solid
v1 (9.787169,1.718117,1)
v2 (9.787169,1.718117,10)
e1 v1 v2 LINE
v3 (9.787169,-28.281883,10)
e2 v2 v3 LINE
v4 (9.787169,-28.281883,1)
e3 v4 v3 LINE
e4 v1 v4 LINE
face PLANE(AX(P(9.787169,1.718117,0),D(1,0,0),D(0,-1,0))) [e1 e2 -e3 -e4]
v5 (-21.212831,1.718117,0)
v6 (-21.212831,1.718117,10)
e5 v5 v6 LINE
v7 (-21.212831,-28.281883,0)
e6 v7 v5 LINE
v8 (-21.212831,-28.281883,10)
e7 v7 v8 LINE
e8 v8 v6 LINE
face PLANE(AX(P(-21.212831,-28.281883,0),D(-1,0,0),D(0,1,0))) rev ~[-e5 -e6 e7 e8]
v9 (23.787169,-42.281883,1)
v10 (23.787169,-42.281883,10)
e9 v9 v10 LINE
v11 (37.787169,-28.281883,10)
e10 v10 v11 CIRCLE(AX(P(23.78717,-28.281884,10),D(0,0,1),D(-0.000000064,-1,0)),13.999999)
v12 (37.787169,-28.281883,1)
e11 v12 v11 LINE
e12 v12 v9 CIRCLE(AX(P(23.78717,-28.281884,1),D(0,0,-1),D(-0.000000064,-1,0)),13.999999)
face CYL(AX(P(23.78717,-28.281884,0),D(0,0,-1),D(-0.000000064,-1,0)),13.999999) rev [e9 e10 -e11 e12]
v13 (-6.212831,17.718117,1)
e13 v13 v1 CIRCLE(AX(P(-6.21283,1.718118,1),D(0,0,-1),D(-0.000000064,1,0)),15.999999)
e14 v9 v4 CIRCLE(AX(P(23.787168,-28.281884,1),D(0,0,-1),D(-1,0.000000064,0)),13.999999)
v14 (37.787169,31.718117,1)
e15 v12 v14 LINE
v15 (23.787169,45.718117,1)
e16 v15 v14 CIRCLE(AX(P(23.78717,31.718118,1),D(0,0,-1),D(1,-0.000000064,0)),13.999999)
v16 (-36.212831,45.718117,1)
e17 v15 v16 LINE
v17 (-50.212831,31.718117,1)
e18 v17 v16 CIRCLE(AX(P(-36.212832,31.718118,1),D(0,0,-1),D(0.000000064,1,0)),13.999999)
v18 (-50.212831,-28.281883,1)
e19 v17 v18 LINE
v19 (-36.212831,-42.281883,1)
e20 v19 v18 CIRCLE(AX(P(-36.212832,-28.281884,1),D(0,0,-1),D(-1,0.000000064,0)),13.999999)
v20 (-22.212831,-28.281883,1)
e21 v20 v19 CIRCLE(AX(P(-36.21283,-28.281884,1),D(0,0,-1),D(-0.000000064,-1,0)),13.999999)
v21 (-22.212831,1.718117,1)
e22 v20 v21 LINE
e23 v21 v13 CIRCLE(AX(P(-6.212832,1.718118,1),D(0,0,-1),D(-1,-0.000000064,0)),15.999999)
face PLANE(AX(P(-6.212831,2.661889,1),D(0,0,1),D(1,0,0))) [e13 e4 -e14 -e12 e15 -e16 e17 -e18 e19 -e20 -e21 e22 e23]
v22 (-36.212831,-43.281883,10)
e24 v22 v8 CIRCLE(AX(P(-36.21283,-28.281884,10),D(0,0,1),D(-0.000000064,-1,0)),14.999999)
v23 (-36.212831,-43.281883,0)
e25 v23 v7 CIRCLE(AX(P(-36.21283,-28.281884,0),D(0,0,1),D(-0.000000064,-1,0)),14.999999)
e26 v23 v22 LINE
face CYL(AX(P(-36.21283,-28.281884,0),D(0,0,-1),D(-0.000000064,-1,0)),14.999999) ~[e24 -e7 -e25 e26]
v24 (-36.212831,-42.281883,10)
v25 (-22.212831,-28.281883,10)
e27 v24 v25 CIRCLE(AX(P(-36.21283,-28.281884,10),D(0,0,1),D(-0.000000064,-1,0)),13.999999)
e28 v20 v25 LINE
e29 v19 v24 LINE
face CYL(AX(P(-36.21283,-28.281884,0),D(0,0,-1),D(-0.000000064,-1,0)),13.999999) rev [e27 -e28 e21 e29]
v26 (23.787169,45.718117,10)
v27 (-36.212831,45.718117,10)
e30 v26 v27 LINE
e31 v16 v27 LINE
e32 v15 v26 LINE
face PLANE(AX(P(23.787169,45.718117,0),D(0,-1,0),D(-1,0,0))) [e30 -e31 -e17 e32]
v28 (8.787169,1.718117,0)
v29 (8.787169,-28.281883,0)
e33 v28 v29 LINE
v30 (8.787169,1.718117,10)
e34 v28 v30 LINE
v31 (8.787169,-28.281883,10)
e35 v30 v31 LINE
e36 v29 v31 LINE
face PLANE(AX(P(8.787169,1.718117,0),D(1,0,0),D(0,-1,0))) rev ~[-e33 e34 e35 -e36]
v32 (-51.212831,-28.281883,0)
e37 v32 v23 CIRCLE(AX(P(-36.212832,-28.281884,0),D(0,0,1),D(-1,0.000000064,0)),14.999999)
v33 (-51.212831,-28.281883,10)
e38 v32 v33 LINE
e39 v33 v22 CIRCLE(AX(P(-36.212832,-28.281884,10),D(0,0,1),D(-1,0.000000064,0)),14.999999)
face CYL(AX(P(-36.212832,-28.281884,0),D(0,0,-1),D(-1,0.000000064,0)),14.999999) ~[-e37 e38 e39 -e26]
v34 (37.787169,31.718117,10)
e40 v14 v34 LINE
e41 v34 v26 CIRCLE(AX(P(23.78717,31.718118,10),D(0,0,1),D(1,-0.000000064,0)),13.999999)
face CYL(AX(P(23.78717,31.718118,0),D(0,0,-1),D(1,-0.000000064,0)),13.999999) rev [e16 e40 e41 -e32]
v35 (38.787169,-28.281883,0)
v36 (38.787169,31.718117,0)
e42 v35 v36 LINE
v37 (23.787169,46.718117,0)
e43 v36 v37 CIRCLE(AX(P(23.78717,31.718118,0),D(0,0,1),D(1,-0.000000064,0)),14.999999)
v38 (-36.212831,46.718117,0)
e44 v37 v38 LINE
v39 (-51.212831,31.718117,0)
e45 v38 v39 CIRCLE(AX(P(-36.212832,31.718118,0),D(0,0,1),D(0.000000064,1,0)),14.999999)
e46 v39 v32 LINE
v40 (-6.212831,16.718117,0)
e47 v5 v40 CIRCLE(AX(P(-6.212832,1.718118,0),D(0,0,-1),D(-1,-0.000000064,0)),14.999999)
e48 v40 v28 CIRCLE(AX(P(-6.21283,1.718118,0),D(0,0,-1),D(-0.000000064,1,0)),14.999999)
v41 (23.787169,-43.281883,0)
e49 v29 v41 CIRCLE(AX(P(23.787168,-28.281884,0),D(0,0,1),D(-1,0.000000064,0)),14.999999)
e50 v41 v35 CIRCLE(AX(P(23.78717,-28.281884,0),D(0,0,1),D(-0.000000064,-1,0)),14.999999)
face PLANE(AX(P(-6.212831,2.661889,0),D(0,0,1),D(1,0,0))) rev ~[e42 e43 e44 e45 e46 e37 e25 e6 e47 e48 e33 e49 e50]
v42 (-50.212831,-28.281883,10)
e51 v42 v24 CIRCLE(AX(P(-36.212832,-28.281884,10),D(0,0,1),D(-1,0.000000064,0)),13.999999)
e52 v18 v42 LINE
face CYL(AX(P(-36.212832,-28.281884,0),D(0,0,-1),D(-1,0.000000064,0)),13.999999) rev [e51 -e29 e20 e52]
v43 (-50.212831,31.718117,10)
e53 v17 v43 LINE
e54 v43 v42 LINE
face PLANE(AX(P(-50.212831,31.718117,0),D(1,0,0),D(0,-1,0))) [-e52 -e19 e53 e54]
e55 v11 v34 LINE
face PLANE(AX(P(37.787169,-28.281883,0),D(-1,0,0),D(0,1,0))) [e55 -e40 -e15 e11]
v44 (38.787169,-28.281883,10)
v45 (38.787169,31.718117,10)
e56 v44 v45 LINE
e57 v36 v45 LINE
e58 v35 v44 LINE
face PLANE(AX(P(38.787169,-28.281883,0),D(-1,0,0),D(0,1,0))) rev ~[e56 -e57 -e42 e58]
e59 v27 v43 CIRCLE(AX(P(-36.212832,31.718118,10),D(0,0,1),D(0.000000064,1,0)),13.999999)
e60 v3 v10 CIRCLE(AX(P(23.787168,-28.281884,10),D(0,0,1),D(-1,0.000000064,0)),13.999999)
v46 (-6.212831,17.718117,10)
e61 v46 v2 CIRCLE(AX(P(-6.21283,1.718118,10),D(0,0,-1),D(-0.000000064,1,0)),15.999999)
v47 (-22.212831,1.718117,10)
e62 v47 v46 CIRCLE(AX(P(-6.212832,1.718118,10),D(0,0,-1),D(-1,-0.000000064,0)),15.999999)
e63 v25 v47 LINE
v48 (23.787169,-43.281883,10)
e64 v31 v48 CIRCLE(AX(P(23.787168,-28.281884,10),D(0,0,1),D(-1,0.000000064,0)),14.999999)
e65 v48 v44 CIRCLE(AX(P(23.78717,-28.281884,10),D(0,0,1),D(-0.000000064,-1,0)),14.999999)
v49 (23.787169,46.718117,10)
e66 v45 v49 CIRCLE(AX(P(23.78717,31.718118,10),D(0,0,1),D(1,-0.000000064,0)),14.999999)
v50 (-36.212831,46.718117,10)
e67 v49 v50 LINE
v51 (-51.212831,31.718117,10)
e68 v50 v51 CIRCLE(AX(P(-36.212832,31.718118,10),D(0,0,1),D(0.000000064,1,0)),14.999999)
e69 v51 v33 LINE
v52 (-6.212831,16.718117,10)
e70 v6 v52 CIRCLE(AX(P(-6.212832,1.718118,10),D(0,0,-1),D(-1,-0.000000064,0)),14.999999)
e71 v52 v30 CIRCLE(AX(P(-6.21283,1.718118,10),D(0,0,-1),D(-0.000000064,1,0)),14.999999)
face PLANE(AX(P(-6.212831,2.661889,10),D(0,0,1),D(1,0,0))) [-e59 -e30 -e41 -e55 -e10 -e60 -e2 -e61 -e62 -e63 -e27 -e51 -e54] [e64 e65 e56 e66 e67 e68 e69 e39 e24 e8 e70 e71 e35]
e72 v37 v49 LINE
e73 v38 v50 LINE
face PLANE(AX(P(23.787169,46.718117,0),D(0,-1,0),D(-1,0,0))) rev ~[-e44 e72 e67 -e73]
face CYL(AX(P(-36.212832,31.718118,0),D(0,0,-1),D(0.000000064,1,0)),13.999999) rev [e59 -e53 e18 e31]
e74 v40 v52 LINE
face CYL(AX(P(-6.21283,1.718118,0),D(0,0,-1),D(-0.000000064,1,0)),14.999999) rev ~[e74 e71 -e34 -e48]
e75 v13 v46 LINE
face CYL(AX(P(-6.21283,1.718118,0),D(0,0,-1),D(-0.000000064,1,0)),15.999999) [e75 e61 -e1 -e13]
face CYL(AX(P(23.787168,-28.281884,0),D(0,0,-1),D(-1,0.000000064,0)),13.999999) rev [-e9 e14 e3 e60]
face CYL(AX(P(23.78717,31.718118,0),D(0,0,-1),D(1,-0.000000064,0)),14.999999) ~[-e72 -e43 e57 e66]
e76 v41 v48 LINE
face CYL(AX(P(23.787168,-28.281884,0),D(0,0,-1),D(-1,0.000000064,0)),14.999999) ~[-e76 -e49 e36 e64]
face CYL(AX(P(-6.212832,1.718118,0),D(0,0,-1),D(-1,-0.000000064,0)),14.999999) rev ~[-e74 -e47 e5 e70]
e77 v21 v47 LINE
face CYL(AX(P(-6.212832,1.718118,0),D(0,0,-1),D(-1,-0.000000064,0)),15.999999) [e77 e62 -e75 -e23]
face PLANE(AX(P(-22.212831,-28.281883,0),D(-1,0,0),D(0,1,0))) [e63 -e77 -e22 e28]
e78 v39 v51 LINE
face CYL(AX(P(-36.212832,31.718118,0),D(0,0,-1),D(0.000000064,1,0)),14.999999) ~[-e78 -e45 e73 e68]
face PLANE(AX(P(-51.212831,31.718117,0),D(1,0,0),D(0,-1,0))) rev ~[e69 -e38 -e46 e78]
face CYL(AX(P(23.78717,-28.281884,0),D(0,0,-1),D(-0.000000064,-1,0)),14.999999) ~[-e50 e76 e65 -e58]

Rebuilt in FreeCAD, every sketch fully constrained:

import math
import FreeCAD as App
import Part
import Sketcher
Q = App.Units.Quantity


def faces_at(feature, points):
    """Names of the faces that lie closest to the given points."""
    faces = feature.Shape.Faces
    near = lambda p: min(range(len(faces)), key=lambda i: faces[i].distToShape(Part.Vertex(*p))[0])
    return sorted({f"Face{near(p) + 1}" for p in points})

doc = App.newDocument("Part")
body = doc.addObject("PartDesign::Body", "Body")

# Sketch on XY plane
sketch1 = doc.addObject("Sketcher::SketchObject", "Sketch")
body.addObject(sketch1)
sketch1.AttachmentSupport = (doc.XY_Plane, [""])
sketch1.MapMode = "FlatFace"
sketch1.addGeometry([
    Part.LineSegment(App.Vector(-51, 32, 0), App.Vector(-51, -28, 0)),  # 0
    Part.ArcOfCircle(Part.Circle(App.Vector(-36, -28, 0), App.Vector(0, 0, 1), 15), math.radians(180), math.radians(270)),  # 1
    Part.ArcOfCircle(Part.Circle(App.Vector(-36, -28, 0), App.Vector(0, 0, 1), 15), math.radians(-90), math.radians(0)),  # 2
    Part.LineSegment(App.Vector(-21, -28, 0), App.Vector(-21, 2, 0)),  # 3
    Part.ArcOfCircle(Part.Circle(App.Vector(-6, 2, 0), App.Vector(0, 0, 1), 15), math.radians(90), math.radians(180)),  # 4
    Part.ArcOfCircle(Part.Circle(App.Vector(-6, 2, 0), App.Vector(0, 0, 1), 15), math.radians(0), math.radians(90)),  # 5
    Part.LineSegment(App.Vector(9, 2, 0), App.Vector(9, -28, 0)),  # 6
    Part.ArcOfCircle(Part.Circle(App.Vector(24, -28, 0), App.Vector(0, 0, 1), 15), math.radians(180), math.radians(270)),  # 7
    Part.ArcOfCircle(Part.Circle(App.Vector(24, -28, 0), App.Vector(0, 0, 1), 15), math.radians(-90), math.radians(0)),  # 8
    Part.LineSegment(App.Vector(39, -28, 0), App.Vector(39, 32, 0)),  # 9
    Part.ArcOfCircle(Part.Circle(App.Vector(24, 32, 0), App.Vector(0, 0, 1), 15), math.radians(0), math.radians(90)),  # 10
    Part.LineSegment(App.Vector(24, 47, 0), App.Vector(-36, 47, 0)),  # 11
    Part.ArcOfCircle(Part.Circle(App.Vector(-36, 32, 0), App.Vector(0, 0, 1), 15), math.radians(90), math.radians(180)),  # 12
], False)
sketch1.addConstraint([
    Sketcher.Constraint("Tangent", 0, 2, 1, 1),
    Sketcher.Constraint("Tangent", 1, 2, 2, 1),
    Sketcher.Constraint("Tangent", 2, 2, 3, 1),
    Sketcher.Constraint("Tangent", 3, 2, 4, 2),
    Sketcher.Constraint("Tangent", 4, 1, 5, 2),
    Sketcher.Constraint("Tangent", 5, 1, 6, 1),
    Sketcher.Constraint("Tangent", 6, 2, 7, 1),
    Sketcher.Constraint("Tangent", 7, 2, 8, 1),
    Sketcher.Constraint("Tangent", 8, 2, 9, 1),
    Sketcher.Constraint("Tangent", 9, 2, 10, 1),
    Sketcher.Constraint("Tangent", 10, 2, 11, 1),
    Sketcher.Constraint("Tangent", 11, 2, 12, 1),
    Sketcher.Constraint("Tangent", 12, 2, 0, 1),
    Sketcher.Constraint("Vertical", 0),
    Sketcher.Constraint("Vertical", 3),
    Sketcher.Constraint("Vertical", 6),
    Sketcher.Constraint("Vertical", 9),
    Sketcher.Constraint("Horizontal", 11),
    Sketcher.Constraint("Equal", 1, 2),
    Sketcher.Constraint("Equal", 2, 4),
    Sketcher.Constraint("Equal", 4, 5),
    Sketcher.Constraint("Equal", 5, 7),
    Sketcher.Constraint("Equal", 7, 8),
    Sketcher.Constraint("Equal", 8, 10),
    Sketcher.Constraint("Equal", 10, 12),
    Sketcher.Constraint("Horizontal", 2, 3, 7, 3),
    Sketcher.Constraint("Vertical", 12, 3, 1, 2),
    Sketcher.Constraint("Vertical", 5, 3, 4, 1),
    Sketcher.Constraint("Vertical", 10, 3, 7, 2),
    Sketcher.Constraint("Equal", 11, 0),
    Sketcher.Constraint("Radius", 1, Q("14.999999 mm")),
    Sketcher.Constraint("DistanceY", 3, 1, 3, 2, Q("30 mm")),
    Sketcher.Constraint("DistanceX", 1, 3, -1, 1, Q("36.212832 mm")),
    Sketcher.Constraint("DistanceY", 1, 3, -1, 1, Q("28.281884 mm")),
])
pad1 = doc.addObject("PartDesign::Pad", "Pad")
body.addObject(pad1)
pad1.Profile = sketch1
pad1.Length = 10
doc.recompute()

thickness = doc.addObject("PartDesign::Thickness", "Thickness")
body.addObject(thickness)
thickness.Base = (pad1, faces_at(pad1, [(-24.213, -16.282, 10)]))
thickness.Value = 1
thickness.Reversed = True
thickness.Join = "Arc"

doc.recompute()
